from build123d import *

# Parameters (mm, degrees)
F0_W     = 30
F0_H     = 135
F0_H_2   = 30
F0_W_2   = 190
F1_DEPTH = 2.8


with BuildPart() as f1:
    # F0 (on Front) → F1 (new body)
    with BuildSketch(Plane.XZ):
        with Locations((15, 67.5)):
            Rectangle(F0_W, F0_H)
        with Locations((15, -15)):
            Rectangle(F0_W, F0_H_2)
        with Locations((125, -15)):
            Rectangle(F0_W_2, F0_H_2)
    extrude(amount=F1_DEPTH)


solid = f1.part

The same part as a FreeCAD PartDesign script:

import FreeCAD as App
import Part
import Sketcher
from FreeCAD import Vector

doc = App.newDocument("Part")
body = doc.addObject("PartDesign::Body", "Body")

sketch1 = doc.addObject("Sketcher::SketchObject", "Sketch")
body.addObject(sketch1)
sketch1.AttachmentSupport = (doc.XZ_Plane, [""])
sketch1.MapMode = "FlatFace"
sketch1.addGeometry([
    Part.LineSegment(Vector(0, 135, 0), Vector(0, -30, 0)),
    Part.LineSegment(Vector(0, -30, 0), Vector(220, -30, 0)),
    Part.LineSegment(Vector(220, -30, 0), Vector(220, 0, 0)),
    Part.LineSegment(Vector(220, 0, 0), Vector(30, 0, 0)),
    Part.LineSegment(Vector(30, 0, 0), Vector(30, 135, 0)),
    Part.LineSegment(Vector(30, 135, 0), Vector(0, 135, 0)),
], False)
sketch1.addConstraint([
    Sketcher.Constraint("Coincident", 0, 2, 1, 1),
    Sketcher.Constraint("Coincident", 1, 2, 2, 1),
    Sketcher.Constraint("Coincident", 2, 2, 3, 1),
    Sketcher.Constraint("Coincident", 3, 2, 4, 1),
    Sketcher.Constraint("Coincident", 4, 2, 5, 1),
    Sketcher.Constraint("Coincident", 5, 2, 0, 1),
    Sketcher.Constraint("Vertical", 0),
    Sketcher.Constraint("Horizontal", 1),
    Sketcher.Constraint("Vertical", 2),
    Sketcher.Constraint("Horizontal", 3),
    Sketcher.Constraint("Vertical", 4),
    Sketcher.Constraint("Horizontal", 5),
    Sketcher.Constraint("PointOnObject", 0, 2, -2),
    Sketcher.Constraint("PointOnObject", 2, 2, -1),
    Sketcher.Constraint("Equal", 5, 2),
    Sketcher.Constraint("DistanceX", 1, 1, 1, 2, 220.0),
    Sketcher.Constraint("DistanceX", 3, 2, 3, 1, 190.0),
    Sketcher.Constraint("DistanceY", 0, 2, 0, 1, 165.0),
])
pad1 = doc.addObject("PartDesign::Pad", "Pad")
body.addObject(pad1)
pad1.Profile = sketch1
pad1.Length = 2.8

doc.recompute()
